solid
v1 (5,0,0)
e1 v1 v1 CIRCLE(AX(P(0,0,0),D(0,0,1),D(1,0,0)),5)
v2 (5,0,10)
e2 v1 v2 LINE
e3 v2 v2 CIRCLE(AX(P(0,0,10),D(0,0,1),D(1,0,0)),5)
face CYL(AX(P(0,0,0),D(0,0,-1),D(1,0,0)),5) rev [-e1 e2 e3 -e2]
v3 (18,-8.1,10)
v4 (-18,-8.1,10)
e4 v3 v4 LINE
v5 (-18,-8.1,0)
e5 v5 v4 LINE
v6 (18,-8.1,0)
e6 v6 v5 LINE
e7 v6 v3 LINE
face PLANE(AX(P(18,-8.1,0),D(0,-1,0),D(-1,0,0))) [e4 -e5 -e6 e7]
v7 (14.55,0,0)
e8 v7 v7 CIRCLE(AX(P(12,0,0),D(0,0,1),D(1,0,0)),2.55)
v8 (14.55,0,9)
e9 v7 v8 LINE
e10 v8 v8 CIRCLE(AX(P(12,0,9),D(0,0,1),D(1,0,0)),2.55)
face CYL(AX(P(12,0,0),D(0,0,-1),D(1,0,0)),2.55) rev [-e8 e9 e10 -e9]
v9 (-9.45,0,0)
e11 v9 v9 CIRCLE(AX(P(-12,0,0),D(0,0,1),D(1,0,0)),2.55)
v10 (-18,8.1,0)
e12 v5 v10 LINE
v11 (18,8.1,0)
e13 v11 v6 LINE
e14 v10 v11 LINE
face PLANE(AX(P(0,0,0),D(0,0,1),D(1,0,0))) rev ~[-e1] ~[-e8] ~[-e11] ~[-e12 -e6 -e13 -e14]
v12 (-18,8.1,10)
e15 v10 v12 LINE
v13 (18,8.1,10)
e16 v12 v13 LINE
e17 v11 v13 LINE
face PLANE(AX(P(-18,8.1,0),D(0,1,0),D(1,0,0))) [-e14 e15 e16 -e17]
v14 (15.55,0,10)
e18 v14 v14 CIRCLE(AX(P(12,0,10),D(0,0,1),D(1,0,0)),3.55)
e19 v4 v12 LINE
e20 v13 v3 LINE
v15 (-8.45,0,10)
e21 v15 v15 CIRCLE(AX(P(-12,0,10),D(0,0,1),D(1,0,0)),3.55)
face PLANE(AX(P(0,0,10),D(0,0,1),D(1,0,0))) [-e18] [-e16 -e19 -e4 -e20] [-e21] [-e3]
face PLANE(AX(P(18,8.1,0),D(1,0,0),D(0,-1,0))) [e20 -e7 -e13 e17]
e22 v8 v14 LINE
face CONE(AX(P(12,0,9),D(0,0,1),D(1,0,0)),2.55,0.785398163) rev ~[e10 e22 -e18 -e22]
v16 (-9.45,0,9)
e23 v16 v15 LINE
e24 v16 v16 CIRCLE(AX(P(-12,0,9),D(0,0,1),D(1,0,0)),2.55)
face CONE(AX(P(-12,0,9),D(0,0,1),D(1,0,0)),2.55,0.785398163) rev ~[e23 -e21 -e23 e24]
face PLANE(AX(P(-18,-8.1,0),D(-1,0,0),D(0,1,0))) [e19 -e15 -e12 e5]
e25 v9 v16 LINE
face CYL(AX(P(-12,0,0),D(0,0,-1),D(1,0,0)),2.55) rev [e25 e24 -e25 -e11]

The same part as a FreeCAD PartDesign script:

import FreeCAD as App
import Part
import Sketcher


def edges_at(feature, points):
    """Names of the edges that pass closest to the given points."""
    edges = feature.Shape.Edges
    near = lambda p: min(range(len(edges)), key=lambda i: edges[i].distToShape(Part.Vertex(*p))[0])
    return sorted({f"Edge{near(p) + 1}" for p in points})


def add_polygon(sketch, points):
    """Adds a closed chain of lines whose ends are joined by coincident constraints."""
    first, n = sketch.GeometryCount, len(points)
    for a, b in zip(points, points[1:] + points[:1]):
        sketch.addGeometry(Part.LineSegment(App.Vector(*a, 0), App.Vector(*b, 0)), False)
    for i in range(n):
        sketch.addConstraint(Sketcher.Constraint("Coincident", first + i, 2, first + (i + 1) % n, 1))

doc = App.newDocument("Part")
body = doc.addObject("PartDesign::Body", "Body")

sketch1 = body.newObject("Sketcher::SketchObject", "Sketch")
sketch1.AttachmentSupport = (doc.getObject("XY_Plane"), [""])
sketch1.MapMode = "FlatFace"
add_polygon(sketch1, [(18, 8.1), (-18, 8.1), (-18, -8.1), (18, -8.1)])
sketch1.addGeometry(Part.Circle(App.Vector(-12, 0, 0), App.Vector(0, 0, 1), 2.5), False)
sketch1.addGeometry(Part.Circle(App.Vector(0, 0, 0), App.Vector(0, 0, 1), 5), False)
sketch1.addGeometry(Part.Circle(App.Vector(12, 0, 0), App.Vector(0, 0, 1), 2.5), False)
sketch1.addConstraint([
    Sketcher.Constraint("Horizontal", 0),
    Sketcher.Constraint("Vertical", 1),
    Sketcher.Constraint("Horizontal", 2),
    Sketcher.Constraint("Vertical", 3),
    Sketcher.Constraint("Coincident", 5, 3, -1, 1),
    Sketcher.Constraint("Equal", 4, 6),
    Sketcher.Constraint("Symmetric", 4, 3, 6, 3, -1, 1),
    Sketcher.Constraint("Symmetric", 0, 2, 2, 2, -1, 1),
    Sketcher.Constraint("PointOnObject", 4, 3, -1),
    Sketcher.Constraint("Diameter", 5, 10.0),
    Sketcher.Constraint("Diameter", 4, 5.1),
    Sketcher.Constraint("DistanceX", 0, 2, 0, 1, 36.0),
    Sketcher.Constraint("DistanceY", 1, 2, 1, 1, 16.2),
    Sketcher.Constraint("DistanceX", 4, 3, -1, 1, 12.0),
])
pad1 = body.newObject("PartDesign::Pad", "Pad")
pad1.Profile = sketch1
pad1.Length = 10
doc.recompute()

chamfer = body.newObject("PartDesign::Chamfer", "Chamfer")
chamfer.Base = (pad1, edges_at(pad1, [(-14.55, 0, 10), (9.45, 0, 10)]))
chamfer.Size = 1

doc.recompute()
